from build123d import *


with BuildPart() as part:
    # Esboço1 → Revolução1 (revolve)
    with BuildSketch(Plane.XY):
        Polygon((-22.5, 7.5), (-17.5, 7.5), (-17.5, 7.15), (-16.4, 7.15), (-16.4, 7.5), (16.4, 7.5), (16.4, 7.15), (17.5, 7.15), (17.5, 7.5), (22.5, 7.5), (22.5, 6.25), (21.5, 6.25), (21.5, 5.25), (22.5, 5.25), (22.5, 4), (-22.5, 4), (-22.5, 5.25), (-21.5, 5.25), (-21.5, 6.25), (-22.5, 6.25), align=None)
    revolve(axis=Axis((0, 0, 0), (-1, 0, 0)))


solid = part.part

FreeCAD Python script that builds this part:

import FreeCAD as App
import Part
import Sketcher

doc = App.newDocument("Part")
body = doc.addObject("PartDesign::Body", "Body")

# Sketch on XY plane
sketch1 = doc.addObject("Sketcher::SketchObject", "Sketch")
body.addObject(sketch1)
sketch1.AttachmentSupport = (doc.XY_Plane, [""])
sketch1.MapMode = "FlatFace"
sketch1.addGeometry([
    Part.LineSegment(App.Vector(-17.5, 7.5, 0), App.Vector(-22.5, 7.5, 0)),  # 0
    Part.LineSegment(App.Vector(-22.5, 7.5, 0), App.Vector(-22.5, 6.25, 0)),  # 1
    Part.LineSegment(App.Vector(-22.5, 6.25, 0), App.Vector(-21.5, 6.25, 0)),  # 2
    Part.LineSegment(App.Vector(-21.5, 6.25, 0), App.Vector(-21.5, 5.25, 0)),  # 3
    Part.LineSegment(App.Vector(-21.5, 5.25, 0), App.Vector(-22.5, 5.25, 0)),  # 4
    Part.LineSegment(App.Vector(-22.5, 5.25, 0), App.Vector(-22.5, 4, 0)),  # 5
    Part.LineSegment(App.Vector(-22.5, 4, 0), App.Vector(22.5, 4, 0)),  # 6
    Part.LineSegment(App.Vector(22.5, 4, 0), App.Vector(22.5, 5.25, 0)),  # 7
    Part.LineSegment(App.Vector(22.5, 5.25, 0), App.Vector(21.5, 5.25, 0)),  # 8
    Part.LineSegment(App.Vector(21.5, 5.25, 0), App.Vector(21.5, 6.25, 0)),  # 9
    Part.LineSegment(App.Vector(21.5, 6.25, 0), App.Vector(22.5, 6.25, 0)),  # 10
    Part.LineSegment(App.Vector(22.5, 6.25, 0), App.Vector(22.5, 7.5, 0)),  # 11
    Part.LineSegment(App.Vector(22.5, 7.5, 0), App.Vector(17.5, 7.5, 0)),  # 12
    Part.LineSegment(App.Vector(17.5, 7.5, 0), App.Vector(17.5, 7.15, 0)),  # 13
    Part.LineSegment(App.Vector(17.5, 7.15, 0), App.Vector(16.4, 7.15, 0)),  # 14
    Part.LineSegment(App.Vector(16.4, 7.15, 0), App.Vector(16.4, 7.5, 0)),  # 15
    Part.LineSegment(App.Vector(16.4, 7.5, 0), App.Vector(-16.4, 7.5, 0)),  # 16
    Part.LineSegment(App.Vector(-16.4, 7.5, 0), App.Vector(-16.4, 7.15, 0)),  # 17
    Part.LineSegment(App.Vector(-16.4, 7.15, 0), App.Vector(-17.5, 7.15, 0)),  # 18
    Part.LineSegment(App.Vector(-17.5, 7.15, 0), App.Vector(-17.5, 7.5, 0)),  # 19
], False)
sketch1.addConstraint([
    Sketcher.Constraint("Coincident", 0, 2, 1, 1),
    Sketcher.Constraint("Coincident", 1, 2, 2, 1),
    Sketcher.Constraint("Coincident", 2, 2, 3, 1),
    Sketcher.Constraint("Coincident", 3, 2, 4, 1),
    Sketcher.Constraint("Coincident", 4, 2, 5, 1),
    Sketcher.Constraint("Coincident", 5, 2, 6, 1),
    Sketcher.Constraint("Coincident", 6, 2, 7, 1),
    Sketcher.Constraint("Coincident", 7, 2, 8, 1),
    Sketcher.Constraint("Coincident", 8, 2, 9, 1),
    Sketcher.Constraint("Coincident", 9, 2, 10, 1),
    Sketcher.Constraint("Coincident", 10, 2, 11, 1),
    Sketcher.Constraint("Coincident", 11, 2, 12, 1),
    Sketcher.Constraint("Coincident", 12, 2, 13, 1),
    Sketcher.Constraint("Coincident", 13, 2, 14, 1),
    Sketcher.Constraint("Coincident", 14, 2, 15, 1),
    Sketcher.Constraint("Coincident", 15, 2, 16, 1),
    Sketcher.Constraint("Coincident", 16, 2, 17, 1),
    Sketcher.Constraint("Coincident", 17, 2, 18, 1),
    Sketcher.Constraint("Coincident", 18, 2, 19, 1),
    Sketcher.Constraint("Coincident", 19, 2, 0, 1),
    Sketcher.Constraint("Horizontal", 0),
    Sketcher.Constraint("Vertical", 1),
    Sketcher.Constraint("Horizontal", 2),
    Sketcher.Constraint("Vertical", 3),
    Sketcher.Constraint("Horizontal", 4),
    Sketcher.Constraint("Vertical", 5),
    Sketcher.Constraint("Horizontal", 6),
    Sketcher.Constraint("Vertical", 7),
    Sketcher.Constraint("Horizontal", 8),
    Sketcher.Constraint("Vertical", 9),
    Sketcher.Constraint("Horizontal", 10),
    Sketcher.Constraint("Vertical", 11),
    Sketcher.Constraint("Horizontal", 12),
    Sketcher.Constraint("Vertical", 13),
    Sketcher.Constraint("Horizontal", 14),
    Sketcher.Constraint("Vertical", 15),
    Sketcher.Constraint("Horizontal", 16),
    Sketcher.Constraint("Vertical", 17),
    Sketcher.Constraint("Horizontal", 18),
    Sketcher.Constraint("Vertical", 19),
    Sketcher.Constraint("Symmetric", 4, 2, 7, 2, -2),
    Sketcher.Constraint("Symmetric", 2, 2, 9, 2, -2),
    Sketcher.Constraint("Symmetric", 0, 2, 11, 2, -2),
    Sketcher.Constraint("Symmetric", 14, 2, 17, 2, -2),
    Sketcher.Constraint("Horizontal", 12, 2, 15, 2),
    Sketcher.Constraint("Vertical", 1, 2, 4, 2),
    Sketcher.Constraint("Equal", 0, 12),
    Sketcher.Constraint("Equal", 10, 3),
    Sketcher.Constraint("Equal", 1, 5),
    Sketcher.Constraint("DistanceX", 0, 2, 0, 1, 5.0),
    Sketcher.Constraint("DistanceX", 2, 1, 2, 2, 1.0),
    Sketcher.Constraint("DistanceX", 6, 1, 6, 2, 45.0),
    Sketcher.Constraint("DistanceX", 14, 2, 14, 1, 1.1),
    Sketcher.Constraint("DistanceY", -1, 1, 5, 2, 4.0),
    Sketcher.Constraint("DistanceY", 1, 2, 1, 1, 1.25),
    Sketcher.Constraint("DistanceY", 13, 2, 13, 1, 0.35),
])
revolution = doc.addObject("PartDesign::Revolution", "Revolution")
body.addObject(revolution)
revolution.Profile = sketch1
revolution.ReferenceAxis = (sketch1, ["H_Axis"])
revolution.Angle = 360

doc.recompute()
